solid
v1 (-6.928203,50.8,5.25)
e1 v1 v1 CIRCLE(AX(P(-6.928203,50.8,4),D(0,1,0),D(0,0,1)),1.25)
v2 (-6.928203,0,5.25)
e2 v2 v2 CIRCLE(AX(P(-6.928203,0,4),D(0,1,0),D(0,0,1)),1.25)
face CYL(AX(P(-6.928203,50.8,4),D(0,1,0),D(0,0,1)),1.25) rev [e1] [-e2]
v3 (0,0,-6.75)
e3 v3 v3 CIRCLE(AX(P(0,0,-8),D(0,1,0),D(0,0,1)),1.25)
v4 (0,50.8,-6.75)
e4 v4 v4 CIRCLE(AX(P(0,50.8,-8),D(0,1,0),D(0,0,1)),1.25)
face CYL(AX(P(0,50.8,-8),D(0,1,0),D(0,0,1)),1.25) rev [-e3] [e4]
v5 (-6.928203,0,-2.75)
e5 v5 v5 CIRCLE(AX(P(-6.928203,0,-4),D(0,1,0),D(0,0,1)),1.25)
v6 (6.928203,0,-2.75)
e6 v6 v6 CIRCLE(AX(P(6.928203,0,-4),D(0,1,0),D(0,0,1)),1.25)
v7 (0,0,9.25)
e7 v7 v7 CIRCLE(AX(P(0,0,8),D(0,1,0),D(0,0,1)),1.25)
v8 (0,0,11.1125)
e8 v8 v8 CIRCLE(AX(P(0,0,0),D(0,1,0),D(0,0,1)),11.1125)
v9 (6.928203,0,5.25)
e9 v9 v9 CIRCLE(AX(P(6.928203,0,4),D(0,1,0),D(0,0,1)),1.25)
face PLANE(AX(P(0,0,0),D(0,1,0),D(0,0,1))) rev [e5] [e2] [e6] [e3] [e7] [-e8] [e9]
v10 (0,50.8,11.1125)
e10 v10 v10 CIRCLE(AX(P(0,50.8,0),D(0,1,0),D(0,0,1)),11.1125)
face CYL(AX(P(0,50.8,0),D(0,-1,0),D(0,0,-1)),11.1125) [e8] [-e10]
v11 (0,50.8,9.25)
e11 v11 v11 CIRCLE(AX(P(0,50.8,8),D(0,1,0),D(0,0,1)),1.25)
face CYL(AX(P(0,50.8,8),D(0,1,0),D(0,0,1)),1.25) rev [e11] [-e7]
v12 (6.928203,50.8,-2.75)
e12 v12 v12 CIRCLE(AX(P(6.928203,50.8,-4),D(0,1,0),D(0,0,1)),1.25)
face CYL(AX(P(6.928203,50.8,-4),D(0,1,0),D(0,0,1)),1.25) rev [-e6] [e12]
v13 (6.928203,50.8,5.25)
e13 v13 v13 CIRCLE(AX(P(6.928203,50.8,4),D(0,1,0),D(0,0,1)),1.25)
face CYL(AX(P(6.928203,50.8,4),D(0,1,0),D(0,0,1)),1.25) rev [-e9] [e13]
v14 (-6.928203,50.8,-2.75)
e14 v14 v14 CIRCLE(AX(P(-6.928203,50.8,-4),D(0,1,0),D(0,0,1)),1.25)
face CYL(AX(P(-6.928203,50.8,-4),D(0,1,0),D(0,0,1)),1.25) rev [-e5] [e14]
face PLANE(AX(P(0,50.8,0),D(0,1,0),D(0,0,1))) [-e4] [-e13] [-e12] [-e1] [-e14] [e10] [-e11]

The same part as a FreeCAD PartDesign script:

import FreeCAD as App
import Part
import Sketcher

V = App.Vector
Q = App.Units.Quantity

doc = App.newDocument("Part")
body = doc.addObject("PartDesign::Body", "Body")

# Sketch on XZ plane
sketch1 = body.newObject("Sketcher::SketchObject", "Sketch")
sketch1.AttachmentSupport = (doc.getObject("XZ_Plane"), [""])
sketch1.MapMode = "FlatFace"
sketch1.addGeometry(Part.Circle(V(0, 0, 0), V(0, 0, 1), 11), False)
sketch1.addConstraint(Sketcher.Constraint("Coincident", 0, 3, -1, 1))
sketch1.addConstraint(Sketcher.Constraint("Diameter", 0, Q("0.875 in")))
pad1 = body.newObject("PartDesign::Pad", "Pad")
pad1.Profile = sketch1
pad1.Length = Q("2 in")
pad1.Reversed = True

# Sketch on XZ plane
sketch2 = body.newObject("Sketcher::SketchObject", "Sketch001")
sketch2.AttachmentSupport = (doc.getObject("XZ_Plane"), [""])
sketch2.MapMode = "FlatFace"
sketch2.AttachmentOffset = App.Placement(V(0, 0, -2 * 25.4), App.Rotation())
sketch2.addGeometry(Part.Circle(V(0, -8, 0), V(0, 0, 1), 1.2), False)
sketch2.addGeometry(Part.Circle(V(6.9, -4, 0), V(0, 0, 1), 1.2), False)
sketch2.addGeometry(Part.Circle(V(6.9, 4, 0), V(0, 0, 1), 1.2), False)
sketch2.addGeometry(Part.Circle(V(0, 8, 0), V(0, 0, 1), 1.2), False)
sketch2.addGeometry(Part.Circle(V(-6.9, 4, 0), V(0, 0, 1), 1.2), False)
sketch2.addGeometry(Part.Circle(V(-6.9, -4, 0), V(0, 0, 1), 1.2), False)
sketch2.addConstraint(Sketcher.Constraint("Equal", 0, 1))
sketch2.addConstraint(Sketcher.Constraint("Equal", 1, 2))
sketch2.addConstraint(Sketcher.Constraint("Equal", 2, 3))
sketch2.addConstraint(Sketcher.Constraint("Equal", 3, 4))
sketch2.addConstraint(Sketcher.Constraint("Equal", 4, 5))
sketch2.addConstraint(Sketcher.Constraint("Symmetric", 0, 3, 3, 3, -1, 1))
sketch2.addConstraint(Sketcher.Constraint("Symmetric", 1, 3, 4, 3, -1, 1))
sketch2.addConstraint(Sketcher.Constraint("Symmetric", 2, 3, 5, 3, -1, 1))
sketch2.addConstraint(Sketcher.Constraint("Symmetric", 2, 3, 4, 3, -2))
sketch2.addConstraint(Sketcher.Constraint("PointOnObject", 0, 3, -2))
sketch2.addConstraint(Sketcher.Constraint("Diameter", 0, Q("2.5 mm")))
sketch2.addConstraint(Sketcher.Constraint("DistanceY", 0, 3, -1, 1, Q("8 mm")))
sketch2.addConstraint(Sketcher.Constraint("DistanceY", 1, 3, -1, 1, Q("4 mm")))
sketch2.addConstraint(Sketcher.Constraint("DistanceX", -1, 1, 1, 3, Q("6.928203 mm")))
doc.recompute()
hole = body.newObject("PartDesign::Hole", "Hole")
hole.Profile = sketch2
hole.ThreadType = "None"
hole.Diameter = 2.5
hole.DepthType = "ThroughAll"
hole.Reversed = True

doc.recompute()
